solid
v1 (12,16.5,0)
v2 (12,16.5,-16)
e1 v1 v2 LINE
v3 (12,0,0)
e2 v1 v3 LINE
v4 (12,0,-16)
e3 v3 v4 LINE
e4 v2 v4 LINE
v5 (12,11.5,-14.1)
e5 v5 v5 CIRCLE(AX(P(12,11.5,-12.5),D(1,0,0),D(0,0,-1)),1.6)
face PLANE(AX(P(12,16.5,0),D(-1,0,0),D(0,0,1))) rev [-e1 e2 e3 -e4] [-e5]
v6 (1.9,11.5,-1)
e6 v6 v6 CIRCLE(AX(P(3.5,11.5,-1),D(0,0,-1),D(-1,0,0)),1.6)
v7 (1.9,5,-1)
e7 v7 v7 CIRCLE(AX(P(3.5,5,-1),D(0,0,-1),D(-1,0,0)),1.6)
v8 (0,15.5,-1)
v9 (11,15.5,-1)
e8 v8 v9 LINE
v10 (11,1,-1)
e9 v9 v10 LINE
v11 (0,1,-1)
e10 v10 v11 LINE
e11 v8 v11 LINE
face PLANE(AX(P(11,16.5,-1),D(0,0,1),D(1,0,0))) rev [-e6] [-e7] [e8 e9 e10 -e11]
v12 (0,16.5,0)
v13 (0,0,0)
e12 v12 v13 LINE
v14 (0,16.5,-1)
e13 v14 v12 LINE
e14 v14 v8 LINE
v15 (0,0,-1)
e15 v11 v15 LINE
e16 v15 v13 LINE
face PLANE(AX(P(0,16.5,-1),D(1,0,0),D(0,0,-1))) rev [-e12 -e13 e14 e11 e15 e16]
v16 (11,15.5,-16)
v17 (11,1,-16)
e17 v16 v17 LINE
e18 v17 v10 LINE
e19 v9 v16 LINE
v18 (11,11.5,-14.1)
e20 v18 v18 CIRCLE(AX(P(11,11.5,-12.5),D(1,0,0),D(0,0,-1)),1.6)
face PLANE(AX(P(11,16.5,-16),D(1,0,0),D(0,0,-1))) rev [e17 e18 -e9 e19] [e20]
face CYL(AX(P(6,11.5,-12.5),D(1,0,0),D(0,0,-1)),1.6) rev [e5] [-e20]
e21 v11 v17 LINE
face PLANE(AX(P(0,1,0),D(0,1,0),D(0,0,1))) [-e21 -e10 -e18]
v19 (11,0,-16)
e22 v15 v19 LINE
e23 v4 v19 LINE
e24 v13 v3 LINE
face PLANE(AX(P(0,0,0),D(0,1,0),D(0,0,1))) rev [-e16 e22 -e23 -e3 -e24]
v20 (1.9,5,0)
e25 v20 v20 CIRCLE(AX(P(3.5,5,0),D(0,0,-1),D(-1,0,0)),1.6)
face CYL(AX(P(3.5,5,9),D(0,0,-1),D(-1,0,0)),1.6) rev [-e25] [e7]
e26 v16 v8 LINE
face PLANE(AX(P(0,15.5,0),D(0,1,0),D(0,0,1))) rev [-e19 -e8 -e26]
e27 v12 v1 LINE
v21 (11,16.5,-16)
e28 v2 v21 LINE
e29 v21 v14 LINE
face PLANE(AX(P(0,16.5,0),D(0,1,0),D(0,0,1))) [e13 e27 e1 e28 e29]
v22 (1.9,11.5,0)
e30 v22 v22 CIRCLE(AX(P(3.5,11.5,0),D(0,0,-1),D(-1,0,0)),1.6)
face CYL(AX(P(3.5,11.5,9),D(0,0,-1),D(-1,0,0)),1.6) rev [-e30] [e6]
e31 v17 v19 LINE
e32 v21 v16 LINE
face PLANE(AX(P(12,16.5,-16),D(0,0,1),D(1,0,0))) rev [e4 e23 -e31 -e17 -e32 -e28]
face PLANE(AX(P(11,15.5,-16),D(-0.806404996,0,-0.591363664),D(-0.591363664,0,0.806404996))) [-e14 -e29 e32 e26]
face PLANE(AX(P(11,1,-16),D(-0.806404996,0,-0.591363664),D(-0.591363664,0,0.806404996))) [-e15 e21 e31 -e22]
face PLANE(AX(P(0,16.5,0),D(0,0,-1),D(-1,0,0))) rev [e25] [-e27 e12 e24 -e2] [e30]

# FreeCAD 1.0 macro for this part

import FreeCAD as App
import Part
import Sketcher
from FreeCAD import Vector


def add_polygon(sketch, points):
    """Adds a closed chain of lines whose ends are joined by coincident constraints."""
    first, n = sketch.GeometryCount, len(points)
    for a, b in zip(points, points[1:] + points[:1]):
        sketch.addGeometry(Part.LineSegment(App.Vector(*a, 0), App.Vector(*b, 0)), False)
    for i in range(n):
        sketch.addConstraint(Sketcher.Constraint("Coincident", first + i, 2, first + (i + 1) % n, 1))

doc = App.newDocument("Part")
body = doc.addObject("PartDesign::Body", "Body")

sketch1 = doc.addObject("Sketcher::SketchObject", "Sketch")
body.addObject(sketch1)
sketch1.AttachmentSupport = (doc.XZ_Plane, [""])
sketch1.MapMode = "FlatFace"
add_polygon(sketch1, [(0, 0), (12, 0), (12, -16), (11, -16), (11, -1), (0, -1)])
sketch1.addConstraint([
    Sketcher.Constraint("Horizontal", 0),
    Sketcher.Constraint("Vertical", 1),
    Sketcher.Constraint("Horizontal", 2),
    Sketcher.Constraint("Vertical", 3),
    Sketcher.Constraint("Horizontal", 4),
    Sketcher.Constraint("Vertical", 5),
    Sketcher.Constraint("Coincident", 5, 2, -1, 1),
    Sketcher.Constraint("Equal", 2, 5),
    Sketcher.Constraint("DistanceX", 0, 1, 0, 2, 12.0),
    Sketcher.Constraint("DistanceX", 2, 2, 2, 1, 1.0),
    Sketcher.Constraint("DistanceY", 1, 2, 1, 1, 16.0),
])
pad1 = doc.addObject("PartDesign::Pad", "Pad")
body.addObject(pad1)
pad1.Profile = sketch1
pad1.Length = 16.5
pad1.Reversed = True

sketch2 = doc.addObject("Sketcher::SketchObject", "Sketch001")
body.addObject(sketch2)
sketch2.AttachmentSupport = (doc.YZ_Plane, [""])
sketch2.MapMode = "FlatFace"
sketch2.AttachmentOffset = App.Placement(Vector(0, 0, 12), App.Rotation())
sketch2.addGeometry(Part.Circle(Vector(11.5, -12.5, 0), Vector(0, 0, 1), 1.6), False)
sketch2.addConstraint([
    Sketcher.Constraint("Diameter", 0, 3.2),
    Sketcher.Constraint("DistanceX", -1, 1, 0, 3, 11.5),
    Sketcher.Constraint("DistanceY", 0, 3, -1, 1, 12.5),
])
pocket1 = doc.addObject("PartDesign::Pocket", "Pocket")
body.addObject(pocket1)
pocket1.Profile = sketch2
pocket1.Length = 6

sketch3 = doc.addObject("Sketcher::SketchObject", "Sketch002")
body.addObject(sketch3)
sketch3.AttachmentSupport = (doc.XY_Plane, [""])
sketch3.MapMode = "FlatFace"
sketch3.AttachmentOffset = App.Placement(Vector(0, 0, -1), App.Rotation())
sketch3.addGeometry([
    Part.Circle(Vector(3.5, 5, 0), Vector(0, 0, 1), 1.6),
    Part.Circle(Vector(3.5, 11.5, 0), Vector(0, 0, 1), 1.6),
], False)
sketch3.addConstraint([
    Sketcher.Constraint("Equal", 0, 1),
    Sketcher.Constraint("Vertical", 0, 3, 1, 3),
    Sketcher.Constraint("Diameter", 0, 3.2),
    Sketcher.Constraint("DistanceY", -1, 1, 0, 3, 5.0),
    Sketcher.Constraint("DistanceX", -1, 1, 0, 3, 3.5),
    Sketcher.Constraint("DistanceY", -1, 1, 1, 3, 11.5),
])
pocket2 = doc.addObject("PartDesign::Pocket", "Pocket001")
body.addObject(pocket2)
pocket2.Profile = sketch3
pocket2.Length = 10
pocket2.Reversed = True

sketch4 = doc.addObject("Sketcher::SketchObject", "Sketch003")
body.addObject(sketch4)
sketch4.AttachmentSupport = (doc.XZ_Plane, [""])
sketch4.MapMode = "FlatFace"
add_polygon(sketch4, [(11, -1), (0, -1), (11, -16)])
sketch4.addConstraint([
    Sketcher.Constraint("Horizontal", 0),
    Sketcher.Constraint("Vertical", 2),
    Sketcher.Constraint("PointOnObject", 0, 2, -2),
    Sketcher.Constraint("DistanceX", 0, 2, 0, 1, 11.0),
    Sketcher.Constraint("DistanceY", 2, 1, 2, 2, 15.0),
    Sketcher.Constraint("DistanceY", 0, 2, -1, 1, 1.0),
])
pad2 = doc.addObject("PartDesign::Pad", "Pad001")
body.addObject(pad2)
pad2.Profile = sketch4
pad2.Length = 1
pad2.Reversed = True

sketch5 = doc.addObject("Sketcher::SketchObject", "Sketch004")
body.addObject(sketch5)
sketch5.AttachmentSupport = (doc.XZ_Plane, [""])
sketch5.MapMode = "FlatFace"
sketch5.AttachmentOffset = App.Placement(Vector(0, 0, -16.5), App.Rotation())
add_polygon(sketch5, [(0, -1), (11, -1), (11, -16)])
sketch5.addConstraint([
    Sketcher.Constraint("Horizontal", 0),
    Sketcher.Constraint("Vertical", 1),
    Sketcher.Constraint("PointOnObject", 2, 2, -2),
    Sketcher.Constraint("DistanceX", 0, 1, 0, 2, 11.0),
    Sketcher.Constraint("DistanceY", 1, 2, 1, 1, 15.0),
    Sketcher.Constraint("DistanceY", 0, 2, -1, 1, 1.0),
])
pad3 = doc.addObject("PartDesign::Pad", "Pad002")
body.addObject(pad3)
pad3.Profile = sketch5
pad3.Length = 1

doc.recompute()
